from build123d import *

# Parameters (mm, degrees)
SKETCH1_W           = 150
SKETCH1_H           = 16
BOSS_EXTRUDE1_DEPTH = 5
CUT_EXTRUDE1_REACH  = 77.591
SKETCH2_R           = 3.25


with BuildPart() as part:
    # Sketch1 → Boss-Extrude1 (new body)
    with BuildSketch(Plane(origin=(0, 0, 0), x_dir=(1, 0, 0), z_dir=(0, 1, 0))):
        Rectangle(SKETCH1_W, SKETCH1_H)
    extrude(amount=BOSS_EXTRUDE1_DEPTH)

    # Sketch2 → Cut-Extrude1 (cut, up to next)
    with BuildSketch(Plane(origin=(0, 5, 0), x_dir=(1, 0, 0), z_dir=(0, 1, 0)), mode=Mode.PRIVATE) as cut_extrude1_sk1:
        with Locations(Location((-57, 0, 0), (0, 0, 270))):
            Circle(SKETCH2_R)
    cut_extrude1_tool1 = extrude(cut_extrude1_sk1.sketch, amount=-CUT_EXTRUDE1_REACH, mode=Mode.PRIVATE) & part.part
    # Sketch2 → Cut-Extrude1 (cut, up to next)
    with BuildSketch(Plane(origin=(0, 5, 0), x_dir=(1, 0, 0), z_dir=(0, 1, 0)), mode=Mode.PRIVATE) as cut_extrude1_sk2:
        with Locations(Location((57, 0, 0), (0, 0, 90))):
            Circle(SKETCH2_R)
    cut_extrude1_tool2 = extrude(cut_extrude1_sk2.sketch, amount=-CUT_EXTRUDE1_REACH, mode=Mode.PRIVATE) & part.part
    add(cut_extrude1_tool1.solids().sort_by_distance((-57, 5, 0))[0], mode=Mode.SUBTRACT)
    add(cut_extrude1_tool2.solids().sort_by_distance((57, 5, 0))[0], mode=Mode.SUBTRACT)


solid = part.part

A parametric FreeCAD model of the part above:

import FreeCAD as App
import Part
import Sketcher
Q = App.Units.Quantity


def add_polygon(sketch, points):
    """Adds a closed chain of lines whose ends are joined by coincident constraints."""
    first, n = sketch.GeometryCount, len(points)
    for a, b in zip(points, points[1:] + points[:1]):
        sketch.addGeometry(Part.LineSegment(App.Vector(*a, 0), App.Vector(*b, 0)), False)
    for i in range(n):
        sketch.addConstraint(Sketcher.Constraint("Coincident", first + i, 2, first + (i + 1) % n, 1))

doc = App.newDocument("Part")
params = doc.addObject("Spreadsheet::Sheet", "Params")
for row, (alias, value) in enumerate([
    ("sketch1_width", "150 mm"),
    ("sketch1_height", "16 mm"),
    ("pad1_length", "5 mm"),
    ("sketch2_diameter", "6.5 mm"),
    ("sketch3_diameter", "6.5 mm"),
], start=1):
    params.set(f"A{row}", alias)
    params.set(f"B{row}", "=" + value)
    params.setAlias(f"B{row}", alias)

body = doc.addObject("PartDesign::Body", "Body")

# Sketch on XZ plane
sketch1 = body.newObject("Sketcher::SketchObject", "Sketch")
sketch1.AttachmentSupport = (doc.getObject("XZ_Plane"), [""])
sketch1.MapMode = "FlatFace"
add_polygon(sketch1, [(-75, -8), (-75, 8), (75, 8), (75, -8)])  # lines 0-3
sketch1.addConstraint(Sketcher.Constraint("Vertical", 0))
sketch1.addConstraint(Sketcher.Constraint("Horizontal", 1))
sketch1.addConstraint(Sketcher.Constraint("Vertical", 2))
sketch1.addConstraint(Sketcher.Constraint("Horizontal", 3))
sketch1.addConstraint(Sketcher.Constraint("Symmetric", 0, 2, 2, 2, -1, 1))
sketch1.addConstraint(Sketcher.Constraint("DistanceX", 1, 1, 1, 2, Q("150 mm")))
sketch1.addConstraint(Sketcher.Constraint("DistanceY", 0, 1, 0, 2, Q("16 mm")))
sketch1.setExpression("Constraints[9]", "Params.sketch1_width")
sketch1.setExpression("Constraints[10]", "Params.sketch1_height")
pad1 = body.newObject("PartDesign::Pad", "Pad")
pad1.Profile = sketch1
pad1.setExpression("Length", "Params.pad1_length")
pad1.Reversed = True

# Sketch on XZ plane
sketch2 = body.newObject("Sketcher::SketchObject", "Sketch001")
sketch2.AttachmentSupport = (doc.getObject("XZ_Plane"), [""])
sketch2.MapMode = "FlatFace"
sketch2.AttachmentOffset = App.Placement(App.Vector(0, 0, -5), App.Rotation())
sketch2.addGeometry(Part.Circle(App.Vector(-57, 0, 0), App.Vector(0, 0, 1), 3.2), False)
sketch2.addConstraint(Sketcher.Constraint("PointOnObject", 0, 3, -1))
sketch2.addConstraint(Sketcher.Constraint("Diameter", 0, Q("6.5 mm")))
sketch2.addConstraint(Sketcher.Constraint("DistanceX", 0, 3, -1, 1, Q("57 mm")))
sketch2.setExpression("Constraints[1]", "Params.sketch2_diameter")
pocket1 = body.newObject("PartDesign::Pocket", "Pocket")
pocket1.Profile = sketch2
pocket1.Type = "UpToFirst"
pocket1.Reversed = True

# Sketch on XZ plane
sketch3 = body.newObject("Sketcher::SketchObject", "Sketch002")
sketch3.AttachmentSupport = (doc.getObject("XZ_Plane"), [""])
sketch3.MapMode = "FlatFace"
sketch3.AttachmentOffset = App.Placement(App.Vector(0, 0, -5), App.Rotation())
sketch3.addGeometry(Part.Circle(App.Vector(57, 0, 0), App.Vector(0, 0, 1), 3.2), False)
sketch3.addConstraint(Sketcher.Constraint("PointOnObject", 0, 3, -1))
sketch3.addConstraint(Sketcher.Constraint("Diameter", 0, Q("6.5 mm")))
sketch3.addConstraint(Sketcher.Constraint("DistanceX", -1, 1, 0, 3, Q("57 mm")))
sketch3.setExpression("Constraints[1]", "Params.sketch3_diameter")
pocket2 = body.newObject("PartDesign::Pocket", "Pocket001")
pocket2.Profile = sketch3
pocket2.Type = "UpToFirst"
pocket2.Reversed = True

doc.recompute()
